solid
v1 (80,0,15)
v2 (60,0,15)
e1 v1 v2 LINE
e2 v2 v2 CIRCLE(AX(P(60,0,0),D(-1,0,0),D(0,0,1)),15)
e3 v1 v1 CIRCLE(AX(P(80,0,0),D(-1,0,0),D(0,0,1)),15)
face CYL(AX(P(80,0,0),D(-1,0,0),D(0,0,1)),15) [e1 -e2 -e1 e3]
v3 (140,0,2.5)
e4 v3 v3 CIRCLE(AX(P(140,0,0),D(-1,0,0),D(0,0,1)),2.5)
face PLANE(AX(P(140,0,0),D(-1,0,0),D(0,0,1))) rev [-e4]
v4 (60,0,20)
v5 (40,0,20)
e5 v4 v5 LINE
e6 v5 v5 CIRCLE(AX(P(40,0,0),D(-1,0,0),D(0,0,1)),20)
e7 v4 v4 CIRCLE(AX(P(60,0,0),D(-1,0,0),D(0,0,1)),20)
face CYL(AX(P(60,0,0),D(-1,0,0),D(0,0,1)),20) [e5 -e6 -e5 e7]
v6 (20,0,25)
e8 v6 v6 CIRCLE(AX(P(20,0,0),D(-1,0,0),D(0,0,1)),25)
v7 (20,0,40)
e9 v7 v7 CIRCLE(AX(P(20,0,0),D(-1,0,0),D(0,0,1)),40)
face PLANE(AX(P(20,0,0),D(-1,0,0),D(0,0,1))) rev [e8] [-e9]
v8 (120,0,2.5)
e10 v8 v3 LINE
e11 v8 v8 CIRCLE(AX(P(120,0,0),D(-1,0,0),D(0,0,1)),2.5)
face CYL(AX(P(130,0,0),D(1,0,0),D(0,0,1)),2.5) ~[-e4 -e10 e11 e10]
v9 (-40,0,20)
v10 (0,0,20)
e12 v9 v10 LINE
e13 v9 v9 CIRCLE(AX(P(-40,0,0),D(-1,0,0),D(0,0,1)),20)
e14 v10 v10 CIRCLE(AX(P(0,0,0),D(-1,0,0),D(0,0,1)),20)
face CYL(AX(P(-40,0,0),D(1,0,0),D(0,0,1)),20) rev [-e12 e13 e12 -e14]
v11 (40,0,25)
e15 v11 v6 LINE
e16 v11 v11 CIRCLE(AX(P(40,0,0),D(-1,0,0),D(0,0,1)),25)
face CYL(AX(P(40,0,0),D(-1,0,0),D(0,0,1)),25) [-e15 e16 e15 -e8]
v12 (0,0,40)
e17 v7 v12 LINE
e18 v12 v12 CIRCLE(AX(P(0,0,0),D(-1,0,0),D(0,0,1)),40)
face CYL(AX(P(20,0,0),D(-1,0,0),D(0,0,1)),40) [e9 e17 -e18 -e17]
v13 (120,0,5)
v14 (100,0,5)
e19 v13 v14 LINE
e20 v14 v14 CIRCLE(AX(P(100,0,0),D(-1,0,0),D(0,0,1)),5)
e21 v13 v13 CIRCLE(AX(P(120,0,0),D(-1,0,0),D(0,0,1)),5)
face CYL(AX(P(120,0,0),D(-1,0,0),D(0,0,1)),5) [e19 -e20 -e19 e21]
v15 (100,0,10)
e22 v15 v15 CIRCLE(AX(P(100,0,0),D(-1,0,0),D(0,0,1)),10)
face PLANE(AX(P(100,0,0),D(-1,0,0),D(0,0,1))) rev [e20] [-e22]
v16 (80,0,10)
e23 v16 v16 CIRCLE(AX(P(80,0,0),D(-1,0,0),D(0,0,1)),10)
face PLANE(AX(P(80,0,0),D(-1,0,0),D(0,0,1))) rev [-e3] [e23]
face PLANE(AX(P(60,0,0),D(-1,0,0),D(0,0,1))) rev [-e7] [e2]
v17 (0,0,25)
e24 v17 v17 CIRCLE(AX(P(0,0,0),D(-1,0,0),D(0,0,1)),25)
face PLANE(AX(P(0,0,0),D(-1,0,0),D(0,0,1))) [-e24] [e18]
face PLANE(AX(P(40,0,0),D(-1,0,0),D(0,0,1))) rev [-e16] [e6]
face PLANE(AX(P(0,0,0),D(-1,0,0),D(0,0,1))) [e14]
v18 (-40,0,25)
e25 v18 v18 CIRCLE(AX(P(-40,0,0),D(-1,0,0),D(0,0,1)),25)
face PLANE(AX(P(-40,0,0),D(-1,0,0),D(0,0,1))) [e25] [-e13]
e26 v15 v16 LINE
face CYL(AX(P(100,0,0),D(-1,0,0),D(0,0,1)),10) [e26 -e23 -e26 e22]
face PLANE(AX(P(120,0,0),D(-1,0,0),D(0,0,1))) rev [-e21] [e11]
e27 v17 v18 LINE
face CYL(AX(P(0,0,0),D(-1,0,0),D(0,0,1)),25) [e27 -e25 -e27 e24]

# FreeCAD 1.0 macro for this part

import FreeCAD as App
import Part
import Sketcher
Q = App.Units.Quantity

doc = App.newDocument("Part")
body = doc.addObject("PartDesign::Body", "Body")

# Sketch on XZ plane
sketch1 = body.newObject("Sketcher::SketchObject", "Sketch")
sketch1.AttachmentSupport = (doc.getObject("XZ_Plane"), [""])
sketch1.MapMode = "FlatFace"
sketch1.addGeometry([
    Part.LineSegment(App.Vector(0, 20, 0), App.Vector(0, 0, 0)),  # 0
    Part.LineSegment(App.Vector(0, 0, 0), App.Vector(140, 0, 0)),  # 1
    Part.LineSegment(App.Vector(140, 0, 0), App.Vector(140, 2.5, 0)),  # 2
    Part.LineSegment(App.Vector(140, 2.5, 0), App.Vector(120, 2.5, 0)),  # 3
    Part.LineSegment(App.Vector(120, 2.5, 0), App.Vector(120, 5, 0)),  # 4
    Part.LineSegment(App.Vector(120, 5, 0), App.Vector(100, 5, 0)),  # 5
    Part.LineSegment(App.Vector(100, 5, 0), App.Vector(100, 10, 0)),  # 6
    Part.LineSegment(App.Vector(100, 10, 0), App.Vector(80, 10, 0)),  # 7
    Part.LineSegment(App.Vector(80, 10, 0), App.Vector(80, 15, 0)),  # 8
    Part.LineSegment(App.Vector(80, 15, 0), App.Vector(60, 15, 0)),  # 9
    Part.LineSegment(App.Vector(60, 15, 0), App.Vector(60, 20, 0)),  # 10
    Part.LineSegment(App.Vector(60, 20, 0), App.Vector(40, 20, 0)),  # 11
    Part.LineSegment(App.Vector(40, 20, 0), App.Vector(40, 25, 0)),  # 12
    Part.LineSegment(App.Vector(40, 25, 0), App.Vector(20, 25, 0)),  # 13
    Part.LineSegment(App.Vector(20, 25, 0), App.Vector(20, 40, 0)),  # 14
    Part.LineSegment(App.Vector(20, 40, 0), App.Vector(0, 40, 0)),  # 15
    Part.LineSegment(App.Vector(0, 40, 0), App.Vector(0, 25, 0)),  # 16
    Part.LineSegment(App.Vector(0, 25, 0), App.Vector(-40, 25, 0)),  # 17
    Part.LineSegment(App.Vector(-40, 25, 0), App.Vector(-40, 20, 0)),  # 18
    Part.LineSegment(App.Vector(-40, 20, 0), App.Vector(0, 20, 0)),  # 19
], False)
sketch1.addConstraint([
    Sketcher.Constraint("Coincident", 0, 2, 1, 1),
    Sketcher.Constraint("Coincident", 1, 2, 2, 1),
    Sketcher.Constraint("Coincident", 2, 2, 3, 1),
    Sketcher.Constraint("Coincident", 3, 2, 4, 1),
    Sketcher.Constraint("Coincident", 4, 2, 5, 1),
    Sketcher.Constraint("Coincident", 5, 2, 6, 1),
    Sketcher.Constraint("Coincident", 6, 2, 7, 1),
    Sketcher.Constraint("Coincident", 7, 2, 8, 1),
    Sketcher.Constraint("Coincident", 8, 2, 9, 1),
    Sketcher.Constraint("Coincident", 9, 2, 10, 1),
    Sketcher.Constraint("Coincident", 10, 2, 11, 1),
    Sketcher.Constraint("Coincident", 11, 2, 12, 1),
    Sketcher.Constraint("Coincident", 12, 2, 13, 1),
    Sketcher.Constraint("Coincident", 13, 2, 14, 1),
    Sketcher.Constraint("Coincident", 14, 2, 15, 1),
    Sketcher.Constraint("Coincident", 15, 2, 16, 1),
    Sketcher.Constraint("Coincident", 16, 2, 17, 1),
    Sketcher.Constraint("Coincident", 17, 2, 18, 1),
    Sketcher.Constraint("Coincident", 18, 2, 19, 1),
    Sketcher.Constraint("Coincident", 19, 2, 0, 1),
    Sketcher.Constraint("Vertical", 0),
    Sketcher.Constraint("Horizontal", 1),
    Sketcher.Constraint("Vertical", 2),
    Sketcher.Constraint("Horizontal", 3),
    Sketcher.Constraint("Vertical", 4),
    Sketcher.Constraint("Horizontal", 5),
    Sketcher.Constraint("Vertical", 6),
    Sketcher.Constraint("Horizontal", 7),
    Sketcher.Constraint("Vertical", 8),
    Sketcher.Constraint("Horizontal", 9),
    Sketcher.Constraint("Vertical", 10),
    Sketcher.Constraint("Horizontal", 11),
    Sketcher.Constraint("Vertical", 12),
    Sketcher.Constraint("Horizontal", 13),
    Sketcher.Constraint("Vertical", 14),
    Sketcher.Constraint("Horizontal", 15),
    Sketcher.Constraint("Vertical", 16),
    Sketcher.Constraint("Horizontal", 17),
    Sketcher.Constraint("Vertical", 18),
    Sketcher.Constraint("Horizontal", 19),
    Sketcher.Constraint("Coincident", 0, 2, -1, 1),
    Sketcher.Constraint("Symmetric", 12, 2, 17, 2, -2),
    Sketcher.Constraint("PointOnObject", 15, 2, -2),
    Sketcher.Constraint("Horizontal", 11, 2, 18, 2),
    Sketcher.Constraint("Equal", 3, 5),
    Sketcher.Constraint("Equal", 5, 7),
    Sketcher.Constraint("Equal", 7, 9),
    Sketcher.Constraint("Equal", 9, 11),
    Sketcher.Constraint("Equal", 11, 13),
    Sketcher.Constraint("Equal", 13, 15),
    Sketcher.Constraint("Equal", 15, 0),
    Sketcher.Constraint("Equal", 2, 4),
    Sketcher.Constraint("Equal", 6, 8),
    Sketcher.Constraint("Equal", 8, 10),
    Sketcher.Constraint("Equal", 10, 12),
    Sketcher.Constraint("DistanceX", 1, 1, 1, 2, Q("140 mm")),
    Sketcher.Constraint("DistanceY", 6, 1, 6, 2, Q("5 mm")),
    Sketcher.Constraint("DistanceY", 14, 1, 14, 2, Q("15 mm")),
])
revolution = body.newObject("PartDesign::Revolution", "Revolution")
revolution.Profile = sketch1
revolution.ReferenceAxis = (sketch1, ["H_Axis"])
revolution.Angle = 360

doc.recompute()
